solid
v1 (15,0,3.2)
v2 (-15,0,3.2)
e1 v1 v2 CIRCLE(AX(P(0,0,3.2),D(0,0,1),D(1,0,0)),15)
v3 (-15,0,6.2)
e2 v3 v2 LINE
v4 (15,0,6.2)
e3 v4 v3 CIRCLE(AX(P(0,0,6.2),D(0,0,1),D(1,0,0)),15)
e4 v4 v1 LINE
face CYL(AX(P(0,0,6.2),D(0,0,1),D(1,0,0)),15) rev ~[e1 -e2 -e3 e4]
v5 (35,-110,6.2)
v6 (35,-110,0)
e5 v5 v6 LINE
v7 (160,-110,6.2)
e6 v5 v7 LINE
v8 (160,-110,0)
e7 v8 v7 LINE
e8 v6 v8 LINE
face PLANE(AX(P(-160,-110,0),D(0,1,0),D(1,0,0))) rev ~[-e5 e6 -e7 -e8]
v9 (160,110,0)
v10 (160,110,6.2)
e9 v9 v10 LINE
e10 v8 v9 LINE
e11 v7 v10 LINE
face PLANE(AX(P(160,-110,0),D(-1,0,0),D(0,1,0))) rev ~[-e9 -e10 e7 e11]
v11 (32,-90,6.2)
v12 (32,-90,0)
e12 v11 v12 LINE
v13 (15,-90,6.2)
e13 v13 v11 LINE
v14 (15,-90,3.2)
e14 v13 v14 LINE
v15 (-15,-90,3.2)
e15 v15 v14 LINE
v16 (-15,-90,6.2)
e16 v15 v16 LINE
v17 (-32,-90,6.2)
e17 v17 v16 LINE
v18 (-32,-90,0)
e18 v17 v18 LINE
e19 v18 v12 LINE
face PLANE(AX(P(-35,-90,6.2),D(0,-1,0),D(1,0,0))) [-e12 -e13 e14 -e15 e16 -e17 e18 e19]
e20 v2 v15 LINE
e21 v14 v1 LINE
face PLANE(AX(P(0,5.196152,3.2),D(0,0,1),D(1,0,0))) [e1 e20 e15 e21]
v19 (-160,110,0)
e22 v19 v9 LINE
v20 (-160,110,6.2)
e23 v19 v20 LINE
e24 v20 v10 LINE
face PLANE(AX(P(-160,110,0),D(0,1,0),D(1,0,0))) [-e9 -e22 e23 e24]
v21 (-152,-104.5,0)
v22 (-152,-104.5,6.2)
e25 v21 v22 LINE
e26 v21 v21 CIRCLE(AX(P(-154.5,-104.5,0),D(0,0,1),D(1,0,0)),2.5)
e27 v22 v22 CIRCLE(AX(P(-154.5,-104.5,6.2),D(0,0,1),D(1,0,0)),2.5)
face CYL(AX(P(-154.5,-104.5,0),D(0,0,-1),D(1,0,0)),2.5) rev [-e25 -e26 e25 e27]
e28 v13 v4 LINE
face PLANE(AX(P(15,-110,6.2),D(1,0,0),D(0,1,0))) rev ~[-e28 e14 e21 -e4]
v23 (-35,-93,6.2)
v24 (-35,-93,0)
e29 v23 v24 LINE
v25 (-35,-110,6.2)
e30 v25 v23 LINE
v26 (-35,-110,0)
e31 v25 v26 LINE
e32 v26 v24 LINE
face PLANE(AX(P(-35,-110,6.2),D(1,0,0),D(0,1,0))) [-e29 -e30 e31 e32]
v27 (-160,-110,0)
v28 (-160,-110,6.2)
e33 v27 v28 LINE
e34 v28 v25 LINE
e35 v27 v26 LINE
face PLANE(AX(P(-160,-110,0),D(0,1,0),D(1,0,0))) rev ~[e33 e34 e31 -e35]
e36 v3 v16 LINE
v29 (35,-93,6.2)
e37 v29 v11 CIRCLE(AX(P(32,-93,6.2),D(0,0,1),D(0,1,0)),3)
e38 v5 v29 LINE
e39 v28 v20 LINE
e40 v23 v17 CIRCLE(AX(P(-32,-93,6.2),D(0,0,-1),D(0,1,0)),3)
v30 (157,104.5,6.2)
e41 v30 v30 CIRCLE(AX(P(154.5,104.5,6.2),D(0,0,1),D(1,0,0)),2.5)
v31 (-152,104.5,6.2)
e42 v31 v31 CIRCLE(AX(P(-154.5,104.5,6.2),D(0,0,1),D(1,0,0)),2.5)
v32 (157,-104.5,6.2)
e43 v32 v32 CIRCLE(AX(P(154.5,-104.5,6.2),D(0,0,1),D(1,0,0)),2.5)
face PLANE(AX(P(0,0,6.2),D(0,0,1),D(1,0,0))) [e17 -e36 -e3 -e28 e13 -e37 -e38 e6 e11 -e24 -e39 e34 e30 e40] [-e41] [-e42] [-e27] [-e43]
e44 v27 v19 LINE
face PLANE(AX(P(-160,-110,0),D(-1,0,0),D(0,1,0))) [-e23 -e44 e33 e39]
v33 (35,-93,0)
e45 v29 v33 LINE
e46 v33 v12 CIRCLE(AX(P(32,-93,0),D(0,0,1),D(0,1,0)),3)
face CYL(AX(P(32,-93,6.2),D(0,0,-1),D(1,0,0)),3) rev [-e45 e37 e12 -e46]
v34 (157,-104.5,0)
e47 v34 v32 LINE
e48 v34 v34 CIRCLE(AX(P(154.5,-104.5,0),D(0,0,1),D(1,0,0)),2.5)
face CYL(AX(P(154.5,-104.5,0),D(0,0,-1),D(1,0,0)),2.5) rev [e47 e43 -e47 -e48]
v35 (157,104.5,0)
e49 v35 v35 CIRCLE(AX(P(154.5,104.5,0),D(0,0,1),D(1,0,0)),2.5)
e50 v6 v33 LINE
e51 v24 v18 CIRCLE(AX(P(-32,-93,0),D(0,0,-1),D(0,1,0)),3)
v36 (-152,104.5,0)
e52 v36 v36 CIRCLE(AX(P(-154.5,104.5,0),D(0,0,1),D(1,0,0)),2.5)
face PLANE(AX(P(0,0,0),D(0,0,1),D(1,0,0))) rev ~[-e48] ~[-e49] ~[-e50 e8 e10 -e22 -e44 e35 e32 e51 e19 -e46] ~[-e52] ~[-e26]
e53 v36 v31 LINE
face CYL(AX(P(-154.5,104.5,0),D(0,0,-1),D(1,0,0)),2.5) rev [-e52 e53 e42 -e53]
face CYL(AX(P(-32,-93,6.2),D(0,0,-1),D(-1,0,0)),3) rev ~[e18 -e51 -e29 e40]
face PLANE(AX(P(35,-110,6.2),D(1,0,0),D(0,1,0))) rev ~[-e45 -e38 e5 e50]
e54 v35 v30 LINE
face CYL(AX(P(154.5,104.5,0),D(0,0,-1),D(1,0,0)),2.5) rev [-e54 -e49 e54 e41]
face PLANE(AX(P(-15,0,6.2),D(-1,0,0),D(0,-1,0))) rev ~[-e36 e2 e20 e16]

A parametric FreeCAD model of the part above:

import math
import FreeCAD as App
import Part
import Sketcher
from FreeCAD import Vector
Q = App.Units.Quantity


def edges_at(feature, points):
    """Names of the edges that pass closest to the given points."""
    edges = feature.Shape.Edges
    near = lambda p: min(range(len(edges)), key=lambda i: edges[i].distToShape(Part.Vertex(*p))[0])
    return sorted({f"Edge{near(p) + 1}" for p in points})

doc = App.newDocument("Part")
body = doc.addObject("PartDesign::Body", "Body")

# Sketch on XY plane
sketch1 = doc.addObject("Sketcher::SketchObject", "Sketch")
body.addObject(sketch1)
sketch1.AttachmentSupport = (doc.XY_Plane, [""])
sketch1.MapMode = "FlatFace"
sketch1.addGeometry(Part.LineSegment(Vector(-160, 110, 0), Vector(-160, -110, 0)), False)
sketch1.addGeometry(Part.LineSegment(Vector(-160, -110, 0), Vector(160, -110, 0)), False)
sketch1.addGeometry(Part.LineSegment(Vector(160, -110, 0), Vector(160, 110, 0)), False)
sketch1.addGeometry(Part.LineSegment(Vector(160, 110, 0), Vector(-160, 110, 0)), False)
sketch1.addGeometry(Part.Circle(Vector(-154.5, -104.5, 0), Vector(0, 0, 1), 2.5), False)
sketch1.addGeometry(Part.Circle(Vector(154.5, -104.5, 0), Vector(0, 0, 1), 2.5), False)
sketch1.addGeometry(Part.Circle(Vector(-154.5, 104.5, 0), Vector(0, 0, 1), 2.5), False)
sketch1.addGeometry(Part.Circle(Vector(154.5, 104.5, 0), Vector(0, 0, 1), 2.5), False)
sketch1.addConstraint(Sketcher.Constraint("Coincident", 0, 2, 1, 1))
sketch1.addConstraint(Sketcher.Constraint("Coincident", 1, 2, 2, 1))
sketch1.addConstraint(Sketcher.Constraint("Coincident", 2, 2, 3, 1))
sketch1.addConstraint(Sketcher.Constraint("Coincident", 3, 2, 0, 1))
sketch1.addConstraint(Sketcher.Constraint("Vertical", 0))
sketch1.addConstraint(Sketcher.Constraint("Horizontal", 1))
sketch1.addConstraint(Sketcher.Constraint("Vertical", 2))
sketch1.addConstraint(Sketcher.Constraint("Horizontal", 3))
sketch1.addConstraint(Sketcher.Constraint("Equal", 4, 5))
sketch1.addConstraint(Sketcher.Constraint("Equal", 5, 6))
sketch1.addConstraint(Sketcher.Constraint("Equal", 6, 7))
sketch1.addConstraint(Sketcher.Constraint("Symmetric", 5, 3, 6, 3, -1, 1))
sketch1.addConstraint(Sketcher.Constraint("Symmetric", 4, 3, 7, 3, -1, 1))
sketch1.addConstraint(Sketcher.Constraint("Symmetric", 0, 2, 2, 2, -1, 1))
sketch1.addConstraint(Sketcher.Constraint("Symmetric", 4, 3, 5, 3, -2))
sketch1.addConstraint(Sketcher.Constraint("Diameter", 4, Q("5 mm")))
sketch1.addConstraint(Sketcher.Constraint("DistanceX", 1, 1, 1, 2, Q("320 mm")))
sketch1.addConstraint(Sketcher.Constraint("DistanceY", 0, 2, 0, 1, Q("220 mm")))
sketch1.addConstraint(Sketcher.Constraint("DistanceX", 4, 3, 5, 3, Q("309 mm")))
sketch1.addConstraint(Sketcher.Constraint("DistanceY", 4, 3, 6, 3, Q("209 mm")))
pad1 = doc.addObject("PartDesign::Pad", "Pad")
body.addObject(pad1)
pad1.Profile = sketch1
pad1.Length = 6.2

# Sketch on XY plane
sketch2 = doc.addObject("Sketcher::SketchObject", "Sketch001")
body.addObject(sketch2)
sketch2.AttachmentSupport = (doc.XY_Plane, [""])
sketch2.MapMode = "FlatFace"
sketch2.AttachmentOffset = App.Placement(Vector(0, 0, 6.2), App.Rotation())
sketch2.addGeometry(Part.ArcOfCircle(Part.Circle(Vector(0, 0, 0), Vector(0, 0, 1), 15), math.radians(0), math.radians(180)), False)
sketch2.addGeometry(Part.LineSegment(Vector(-15, 0, 0), Vector(-15, -110, 0)), False)
sketch2.addGeometry(Part.LineSegment(Vector(-15, -110, 0), Vector(15, -110, 0)), False)
sketch2.addGeometry(Part.LineSegment(Vector(15, -110, 0), Vector(15, 0, 0)), False)
sketch2.addConstraint(Sketcher.Constraint("Tangent", 0, 2, 1, 1))
sketch2.addConstraint(Sketcher.Constraint("Coincident", 1, 2, 2, 1))
sketch2.addConstraint(Sketcher.Constraint("Coincident", 2, 2, 3, 1))
sketch2.addConstraint(Sketcher.Constraint("Tangent", 3, 2, 0, 1))
sketch2.addConstraint(Sketcher.Constraint("Vertical", 1))
sketch2.addConstraint(Sketcher.Constraint("Horizontal", 2))
sketch2.addConstraint(Sketcher.Constraint("Vertical", 3))
sketch2.addConstraint(Sketcher.Constraint("Coincident", 0, 3, -1, 1))
sketch2.addConstraint(Sketcher.Constraint("Radius", 0, Q("15 mm")))
sketch2.addConstraint(Sketcher.Constraint("DistanceY", 1, 2, 1, 1, Q("110 mm")))
pocket1 = doc.addObject("PartDesign::Pocket", "Pocket")
body.addObject(pocket1)
pocket1.Profile = sketch2
pocket1.Length = 3

# Sketch on XY plane
sketch3 = doc.addObject("Sketcher::SketchObject", "Sketch002")
body.addObject(sketch3)
sketch3.AttachmentSupport = (doc.XY_Plane, [""])
sketch3.MapMode = "FlatFace"
sketch3.AttachmentOffset = App.Placement(Vector(0, 0, 6.2), App.Rotation())
sketch3.addGeometry(Part.LineSegment(Vector(-35, -90, 0), Vector(-35, -110, 0)), False)
sketch3.addGeometry(Part.LineSegment(Vector(-35, -110, 0), Vector(35, -110, 0)), False)
sketch3.addGeometry(Part.LineSegment(Vector(35, -110, 0), Vector(35, -90, 0)), False)
sketch3.addGeometry(Part.LineSegment(Vector(35, -90, 0), Vector(-35, -90, 0)), False)
sketch3.addConstraint(Sketcher.Constraint("Coincident", 0, 2, 1, 1))
sketch3.addConstraint(Sketcher.Constraint("Coincident", 1, 2, 2, 1))
sketch3.addConstraint(Sketcher.Constraint("Coincident", 2, 2, 3, 1))
sketch3.addConstraint(Sketcher.Constraint("Coincident", 3, 2, 0, 1))
sketch3.addConstraint(Sketcher.Constraint("Vertical", 0))
sketch3.addConstraint(Sketcher.Constraint("Horizontal", 1))
sketch3.addConstraint(Sketcher.Constraint("Vertical", 2))
sketch3.addConstraint(Sketcher.Constraint("Horizontal", 3))
sketch3.addConstraint(Sketcher.Constraint("DistanceX", 1, 1, 1, 2, Q("70 mm")))
sketch3.addConstraint(Sketcher.Constraint("DistanceY", 0, 2, 0, 1, Q("20 mm")))
sketch3.addConstraint(Sketcher.Constraint("DistanceX", 0, 2, -1, 1, Q("35 mm")))
sketch3.addConstraint(Sketcher.Constraint("DistanceY", 0, 2, -1, 1, Q("110 mm")))
pocket2 = doc.addObject("PartDesign::Pocket", "Pocket001")
body.addObject(pocket2)
pocket2.Profile = sketch3
pocket2.Length = 25
doc.recompute()

fillet = doc.addObject("PartDesign::Fillet", "Fillet")
body.addObject(fillet)
fillet.Base = (pocket2, edges_at(pocket2, [(35, -90, 3.1), (-35, -90, 3.1)]))
fillet.Radius = 3

doc.recompute()
